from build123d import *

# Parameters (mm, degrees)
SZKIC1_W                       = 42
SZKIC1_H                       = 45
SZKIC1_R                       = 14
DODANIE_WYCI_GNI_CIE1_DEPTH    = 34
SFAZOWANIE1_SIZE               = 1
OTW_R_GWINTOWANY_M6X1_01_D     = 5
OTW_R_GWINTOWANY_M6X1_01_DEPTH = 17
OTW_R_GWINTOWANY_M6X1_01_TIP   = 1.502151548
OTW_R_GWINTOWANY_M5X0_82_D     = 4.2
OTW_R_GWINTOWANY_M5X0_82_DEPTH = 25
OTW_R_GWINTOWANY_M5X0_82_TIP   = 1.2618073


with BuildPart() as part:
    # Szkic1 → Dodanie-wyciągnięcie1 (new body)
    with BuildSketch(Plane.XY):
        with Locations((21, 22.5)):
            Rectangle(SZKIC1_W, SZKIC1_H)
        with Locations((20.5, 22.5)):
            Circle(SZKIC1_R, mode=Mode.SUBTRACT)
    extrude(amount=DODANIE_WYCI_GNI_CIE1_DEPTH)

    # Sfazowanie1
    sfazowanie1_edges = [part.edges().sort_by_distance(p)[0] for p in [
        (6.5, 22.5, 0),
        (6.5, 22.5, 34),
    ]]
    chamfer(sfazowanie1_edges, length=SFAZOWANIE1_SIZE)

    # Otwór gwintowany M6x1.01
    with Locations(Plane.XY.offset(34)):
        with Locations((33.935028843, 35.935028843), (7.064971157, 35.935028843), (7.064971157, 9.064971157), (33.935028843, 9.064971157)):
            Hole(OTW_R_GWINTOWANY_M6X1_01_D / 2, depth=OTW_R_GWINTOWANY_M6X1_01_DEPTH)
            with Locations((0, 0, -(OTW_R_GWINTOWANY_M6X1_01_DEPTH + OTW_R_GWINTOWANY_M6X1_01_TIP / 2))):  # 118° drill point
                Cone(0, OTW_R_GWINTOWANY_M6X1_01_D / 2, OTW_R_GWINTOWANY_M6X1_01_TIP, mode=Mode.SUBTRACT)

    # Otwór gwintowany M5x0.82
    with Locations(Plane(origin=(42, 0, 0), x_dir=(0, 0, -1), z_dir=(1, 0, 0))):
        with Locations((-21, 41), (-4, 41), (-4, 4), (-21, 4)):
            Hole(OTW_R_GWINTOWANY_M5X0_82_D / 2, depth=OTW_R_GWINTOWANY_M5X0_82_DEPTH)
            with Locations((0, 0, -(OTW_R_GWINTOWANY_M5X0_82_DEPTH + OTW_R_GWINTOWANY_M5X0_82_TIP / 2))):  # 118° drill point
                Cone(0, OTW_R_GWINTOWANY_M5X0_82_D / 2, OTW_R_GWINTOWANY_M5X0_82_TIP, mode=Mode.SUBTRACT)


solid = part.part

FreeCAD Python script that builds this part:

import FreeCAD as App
import Part
import Sketcher

V = App.Vector


def edges_at(feature, points):
    """Names of the edges that pass closest to the given points."""
    edges = feature.Shape.Edges
    near = lambda p: min(range(len(edges)), key=lambda i: edges[i].distToShape(Part.Vertex(*p))[0])
    return sorted({f"Edge{near(p) + 1}" for p in points})

doc = App.newDocument("Part")
body = doc.addObject("PartDesign::Body", "Body")

sketch1 = body.newObject("Sketcher::SketchObject", "Sketch")
sketch1.AttachmentSupport = (doc.getObject("XY_Plane"), [""])
sketch1.MapMode = "FlatFace"
sketch1.addGeometry(Part.LineSegment(V(0, 45, 0), V(0, 0, 0)), False)
sketch1.addGeometry(Part.LineSegment(V(0, 0, 0), V(42, 0, 0)), False)
sketch1.addGeometry(Part.LineSegment(V(42, 0, 0), V(42, 45, 0)), False)
sketch1.addGeometry(Part.LineSegment(V(42, 45, 0), V(0, 45, 0)), False)
sketch1.addGeometry(Part.Circle(V(20, 22, 0), V(0, 0, 1), 14), False)
sketch1.addConstraint(Sketcher.Constraint("Coincident", 0, 2, 1, 1))
sketch1.addConstraint(Sketcher.Constraint("Coincident", 1, 2, 2, 1))
sketch1.addConstraint(Sketcher.Constraint("Coincident", 2, 2, 3, 1))
sketch1.addConstraint(Sketcher.Constraint("Coincident", 3, 2, 0, 1))
sketch1.addConstraint(Sketcher.Constraint("Vertical", 0))
sketch1.addConstraint(Sketcher.Constraint("Horizontal", 1))
sketch1.addConstraint(Sketcher.Constraint("Vertical", 2))
sketch1.addConstraint(Sketcher.Constraint("Horizontal", 3))
sketch1.addConstraint(Sketcher.Constraint("Coincident", 0, 2, -1, 1))
sketch1.addConstraint(Sketcher.Constraint("Diameter", 4, 28.0))
sketch1.addConstraint(Sketcher.Constraint("DistanceX", 1, 1, 1, 2, 42.0))
sketch1.addConstraint(Sketcher.Constraint("DistanceY", 0, 2, 0, 1, 45.0))
sketch1.addConstraint(Sketcher.Constraint("DistanceX", -1, 1, 4, 3, 20.5))
sketch1.addConstraint(Sketcher.Constraint("DistanceY", -1, 1, 4, 3, 22.5))
pad1 = body.newObject("PartDesign::Pad", "Pad")
pad1.Profile = sketch1
pad1.Length = 34
doc.recompute()

chamfer = body.newObject("PartDesign::Chamfer", "Chamfer")
chamfer.Base = (pad1, edges_at(pad1, [(6.5, 22.5, 0), (6.5, 22.5, 34)]))
chamfer.Size = 1

sketch2 = body.newObject("Sketcher::SketchObject", "Sketch001")
sketch2.AttachmentSupport = (doc.getObject("XY_Plane"), [""])
sketch2.MapMode = "FlatFace"
sketch2.AttachmentOffset = App.Placement(V(0, 0, 34), App.Rotation())
sketch2.addGeometry(Part.Circle(V(33.9, 35.9, 0), V(0, 0, 1), 2.5), False)
sketch2.addGeometry(Part.Circle(V(7.1, 35.9, 0), V(0, 0, 1), 2.5), False)
sketch2.addGeometry(Part.Circle(V(7.1, 9.1, 0), V(0, 0, 1), 2.5), False)
sketch2.addGeometry(Part.Circle(V(33.9, 9.1, 0), V(0, 0, 1), 2.5), False)
sketch2.addConstraint(Sketcher.Constraint("Equal", 0, 1))
sketch2.addConstraint(Sketcher.Constraint("Equal", 1, 2))
sketch2.addConstraint(Sketcher.Constraint("Equal", 2, 3))
sketch2.addConstraint(Sketcher.Constraint("Horizontal", 0, 3, 1, 3))
sketch2.addConstraint(Sketcher.Constraint("Horizontal", 2, 3, 3, 3))
sketch2.addConstraint(Sketcher.Constraint("Vertical", 1, 3, 2, 3))
sketch2.addConstraint(Sketcher.Constraint("Vertical", 0, 3, 3, 3))
sketch2.addConstraint(Sketcher.Constraint("Diameter", 0, 5.0))
sketch2.addConstraint(Sketcher.Constraint("DistanceX", -1, 1, 0, 3, 33.935029))
sketch2.addConstraint(Sketcher.Constraint("DistanceY", -1, 1, 0, 3, 35.935029))
sketch2.addConstraint(Sketcher.Constraint("DistanceX", -1, 1, 1, 3, 7.064971))
sketch2.addConstraint(Sketcher.Constraint("DistanceY", -1, 1, 2, 3, 9.064971))
doc.recompute()
hole = body.newObject("PartDesign::Hole", "Hole")
hole.Profile = sketch2
hole.ThreadType = "None"
hole.Diameter = 5
hole.DepthType = "Dimension"
hole.Depth = 17
hole.DrillPoint = "Angled"
hole.DrillPointAngle = 118

sketch3 = body.newObject("Sketcher::SketchObject", "Sketch002")
sketch3.AttachmentSupport = (doc.getObject("YZ_Plane"), [""])
sketch3.MapMode = "FlatFace"
sketch3.AttachmentOffset = App.Placement(V(0, 0, 42), App.Rotation())
sketch3.addGeometry(Part.Circle(V(41, 21, 0), V(0, 0, 1), 2.1), False)
sketch3.addGeometry(Part.Circle(V(41, 4, 0), V(0, 0, 1), 2.1), False)
sketch3.addGeometry(Part.Circle(V(4, 4, 0), V(0, 0, 1), 2.1), False)
sketch3.addGeometry(Part.Circle(V(4, 21, 0), V(0, 0, 1), 2.1), False)
sketch3.addConstraint(Sketcher.Constraint("Equal", 0, 1))
sketch3.addConstraint(Sketcher.Constraint("Equal", 1, 2))
sketch3.addConstraint(Sketcher.Constraint("Equal", 2, 3))
sketch3.addConstraint(Sketcher.Constraint("Horizontal", 1, 3, 2, 3))
sketch3.addConstraint(Sketcher.Constraint("Horizontal", 0, 3, 3, 3))
sketch3.addConstraint(Sketcher.Constraint("Vertical", 0, 3, 1, 3))
sketch3.addConstraint(Sketcher.Constraint("Vertical", 2, 3, 3, 3))
sketch3.addConstraint(Sketcher.Constraint("Diameter", 0, 4.2))
sketch3.addConstraint(Sketcher.Constraint("DistanceX", -1, 1, 0, 3, 41.0))
sketch3.addConstraint(Sketcher.Constraint("DistanceY", -1, 1, 0, 3, 21.0))
sketch3.addConstraint(Sketcher.Constraint("DistanceY", -1, 1, 1, 3, 4.0))
sketch3.addConstraint(Sketcher.Constraint("DistanceX", -1, 1, 2, 3, 4.0))
doc.recompute()
hole2 = body.newObject("PartDesign::Hole", "Hole001")
hole2.Profile = sketch3
hole2.ThreadType = "None"
hole2.Diameter = 4.2
hole2.DepthType = "Dimension"
hole2.Depth = 25
hole2.DrillPoint = "Angled"
hole2.DrillPointAngle = 118

doc.recompute()
